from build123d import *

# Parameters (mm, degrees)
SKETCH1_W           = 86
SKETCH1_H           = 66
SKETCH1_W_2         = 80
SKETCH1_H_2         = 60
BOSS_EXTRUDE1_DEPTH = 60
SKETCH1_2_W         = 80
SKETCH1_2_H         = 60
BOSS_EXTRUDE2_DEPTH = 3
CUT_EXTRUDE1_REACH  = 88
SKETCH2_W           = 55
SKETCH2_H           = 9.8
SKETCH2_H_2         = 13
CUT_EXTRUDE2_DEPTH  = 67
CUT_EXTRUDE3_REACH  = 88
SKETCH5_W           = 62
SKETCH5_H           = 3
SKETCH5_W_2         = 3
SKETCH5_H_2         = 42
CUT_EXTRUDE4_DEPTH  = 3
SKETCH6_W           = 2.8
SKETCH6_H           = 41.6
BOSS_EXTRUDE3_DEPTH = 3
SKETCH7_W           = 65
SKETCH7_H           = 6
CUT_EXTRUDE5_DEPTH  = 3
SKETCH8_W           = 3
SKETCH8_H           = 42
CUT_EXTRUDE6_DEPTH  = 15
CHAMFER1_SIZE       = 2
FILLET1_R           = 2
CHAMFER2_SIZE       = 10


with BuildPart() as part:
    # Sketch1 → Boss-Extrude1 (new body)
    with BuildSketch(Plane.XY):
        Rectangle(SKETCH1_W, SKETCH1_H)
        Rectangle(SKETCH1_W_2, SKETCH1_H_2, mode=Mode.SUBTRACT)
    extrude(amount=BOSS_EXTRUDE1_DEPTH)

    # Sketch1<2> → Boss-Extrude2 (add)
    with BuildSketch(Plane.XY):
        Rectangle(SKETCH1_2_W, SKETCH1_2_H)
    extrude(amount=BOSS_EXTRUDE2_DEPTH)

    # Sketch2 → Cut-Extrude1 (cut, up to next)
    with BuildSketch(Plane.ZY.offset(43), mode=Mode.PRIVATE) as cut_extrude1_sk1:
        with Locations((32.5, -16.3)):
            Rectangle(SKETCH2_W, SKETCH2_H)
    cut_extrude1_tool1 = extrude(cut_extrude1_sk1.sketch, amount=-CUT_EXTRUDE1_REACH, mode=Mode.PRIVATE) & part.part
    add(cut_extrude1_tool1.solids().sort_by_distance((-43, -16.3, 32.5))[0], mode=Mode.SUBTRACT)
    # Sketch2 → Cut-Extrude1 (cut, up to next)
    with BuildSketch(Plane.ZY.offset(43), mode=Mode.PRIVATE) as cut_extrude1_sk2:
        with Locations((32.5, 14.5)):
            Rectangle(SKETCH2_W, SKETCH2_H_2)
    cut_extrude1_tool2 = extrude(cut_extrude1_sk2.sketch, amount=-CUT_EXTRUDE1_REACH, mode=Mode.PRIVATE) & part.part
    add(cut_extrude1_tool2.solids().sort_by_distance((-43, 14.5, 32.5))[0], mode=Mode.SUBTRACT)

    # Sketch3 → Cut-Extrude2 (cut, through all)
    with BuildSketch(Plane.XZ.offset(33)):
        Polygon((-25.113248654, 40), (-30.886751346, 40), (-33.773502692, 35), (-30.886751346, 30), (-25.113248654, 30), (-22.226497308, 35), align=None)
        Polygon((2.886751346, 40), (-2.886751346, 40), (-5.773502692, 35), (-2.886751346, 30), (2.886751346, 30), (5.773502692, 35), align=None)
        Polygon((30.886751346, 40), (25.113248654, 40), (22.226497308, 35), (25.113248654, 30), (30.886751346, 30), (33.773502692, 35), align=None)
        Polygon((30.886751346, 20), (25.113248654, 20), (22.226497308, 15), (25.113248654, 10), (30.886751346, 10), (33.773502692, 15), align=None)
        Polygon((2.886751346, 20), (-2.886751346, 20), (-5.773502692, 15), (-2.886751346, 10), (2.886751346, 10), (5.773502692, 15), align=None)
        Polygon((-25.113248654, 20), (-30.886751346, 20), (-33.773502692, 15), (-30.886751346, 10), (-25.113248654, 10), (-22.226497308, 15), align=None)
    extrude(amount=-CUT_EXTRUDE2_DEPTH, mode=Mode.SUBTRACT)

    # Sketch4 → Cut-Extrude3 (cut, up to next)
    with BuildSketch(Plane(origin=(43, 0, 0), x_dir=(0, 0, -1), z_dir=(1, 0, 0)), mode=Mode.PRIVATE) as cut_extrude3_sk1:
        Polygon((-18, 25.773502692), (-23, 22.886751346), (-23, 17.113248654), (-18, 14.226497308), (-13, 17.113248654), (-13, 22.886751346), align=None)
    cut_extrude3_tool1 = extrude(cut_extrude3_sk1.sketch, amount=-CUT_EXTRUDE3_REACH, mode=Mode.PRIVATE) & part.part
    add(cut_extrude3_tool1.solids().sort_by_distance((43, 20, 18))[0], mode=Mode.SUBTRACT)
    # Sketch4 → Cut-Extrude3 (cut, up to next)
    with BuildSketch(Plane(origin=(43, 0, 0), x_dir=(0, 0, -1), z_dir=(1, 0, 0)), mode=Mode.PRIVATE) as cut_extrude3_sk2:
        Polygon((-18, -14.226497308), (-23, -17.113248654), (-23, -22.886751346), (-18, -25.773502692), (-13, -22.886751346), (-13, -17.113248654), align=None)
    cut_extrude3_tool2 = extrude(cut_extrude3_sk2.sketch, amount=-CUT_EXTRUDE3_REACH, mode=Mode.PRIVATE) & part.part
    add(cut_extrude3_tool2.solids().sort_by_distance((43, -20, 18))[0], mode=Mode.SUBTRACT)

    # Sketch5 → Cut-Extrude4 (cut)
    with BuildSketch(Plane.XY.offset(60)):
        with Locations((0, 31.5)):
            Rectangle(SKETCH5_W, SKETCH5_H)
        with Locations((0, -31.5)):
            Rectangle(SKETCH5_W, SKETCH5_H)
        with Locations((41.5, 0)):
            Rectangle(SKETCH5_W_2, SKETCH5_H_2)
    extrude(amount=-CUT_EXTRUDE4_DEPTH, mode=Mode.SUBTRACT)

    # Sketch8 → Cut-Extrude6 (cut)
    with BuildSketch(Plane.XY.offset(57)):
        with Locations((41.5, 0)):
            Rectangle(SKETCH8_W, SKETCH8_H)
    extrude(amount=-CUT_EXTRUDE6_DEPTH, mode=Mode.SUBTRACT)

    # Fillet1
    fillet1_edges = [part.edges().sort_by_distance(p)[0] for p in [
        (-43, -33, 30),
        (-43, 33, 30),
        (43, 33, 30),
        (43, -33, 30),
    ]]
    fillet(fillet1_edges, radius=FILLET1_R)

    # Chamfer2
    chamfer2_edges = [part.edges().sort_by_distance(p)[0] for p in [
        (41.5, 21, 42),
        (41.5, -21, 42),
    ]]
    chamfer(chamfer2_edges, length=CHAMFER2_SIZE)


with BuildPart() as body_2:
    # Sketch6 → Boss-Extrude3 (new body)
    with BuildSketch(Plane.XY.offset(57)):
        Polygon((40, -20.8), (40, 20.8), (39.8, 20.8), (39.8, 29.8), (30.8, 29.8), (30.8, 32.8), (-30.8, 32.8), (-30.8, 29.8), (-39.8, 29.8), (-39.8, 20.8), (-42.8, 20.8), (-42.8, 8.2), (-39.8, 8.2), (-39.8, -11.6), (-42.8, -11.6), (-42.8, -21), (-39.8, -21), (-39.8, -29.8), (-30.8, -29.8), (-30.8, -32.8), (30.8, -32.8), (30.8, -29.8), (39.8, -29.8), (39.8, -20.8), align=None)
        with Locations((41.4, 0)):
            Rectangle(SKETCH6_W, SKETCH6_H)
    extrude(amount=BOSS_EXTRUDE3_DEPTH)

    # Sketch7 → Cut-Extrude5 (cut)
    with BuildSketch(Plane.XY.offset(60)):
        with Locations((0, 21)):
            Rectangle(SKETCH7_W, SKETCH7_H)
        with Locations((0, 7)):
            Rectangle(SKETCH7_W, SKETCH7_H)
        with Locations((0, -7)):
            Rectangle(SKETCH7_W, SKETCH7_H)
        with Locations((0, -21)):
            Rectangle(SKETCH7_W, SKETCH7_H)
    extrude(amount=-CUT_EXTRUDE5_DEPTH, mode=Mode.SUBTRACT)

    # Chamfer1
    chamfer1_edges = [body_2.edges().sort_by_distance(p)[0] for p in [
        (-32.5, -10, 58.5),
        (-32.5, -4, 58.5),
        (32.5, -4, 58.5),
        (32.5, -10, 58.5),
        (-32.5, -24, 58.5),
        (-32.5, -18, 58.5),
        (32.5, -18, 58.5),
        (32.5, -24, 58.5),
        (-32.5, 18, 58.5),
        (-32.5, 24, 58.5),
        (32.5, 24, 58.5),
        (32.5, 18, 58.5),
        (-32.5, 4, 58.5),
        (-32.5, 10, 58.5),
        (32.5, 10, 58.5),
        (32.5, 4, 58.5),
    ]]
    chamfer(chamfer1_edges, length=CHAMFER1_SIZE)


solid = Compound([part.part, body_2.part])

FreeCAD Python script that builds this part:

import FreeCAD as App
import Part
import Sketcher
Q = App.Units.Quantity


def edges_at(feature, points):
    """Names of the edges that pass closest to the given points."""
    edges = feature.Shape.Edges
    near = lambda p: min(range(len(edges)), key=lambda i: edges[i].distToShape(Part.Vertex(*p))[0])
    return sorted({f"Edge{near(p) + 1}" for p in points})

doc = App.newDocument("Part")
body = doc.addObject("PartDesign::Body", "Body")

# Sketch on XY plane
sketch1 = doc.addObject("Sketcher::SketchObject", "Sketch")
body.addObject(sketch1)
sketch1.AttachmentSupport = (doc.XY_Plane, [""])
sketch1.MapMode = "FlatFace"
sketch1.addGeometry([
    Part.LineSegment(App.Vector(-43, 33, 0), App.Vector(-43, -33, 0)),  # 0
    Part.LineSegment(App.Vector(-43, -33, 0), App.Vector(43, -33, 0)),  # 1
    Part.LineSegment(App.Vector(43, -33, 0), App.Vector(43, 33, 0)),  # 2
    Part.LineSegment(App.Vector(43, 33, 0), App.Vector(-43, 33, 0)),  # 3
    Part.LineSegment(App.Vector(40, -30, 0), App.Vector(-40, -30, 0)),  # 4
    Part.LineSegment(App.Vector(-40, -30, 0), App.Vector(-40, 30, 0)),  # 5
    Part.LineSegment(App.Vector(-40, 30, 0), App.Vector(40, 30, 0)),  # 6
    Part.LineSegment(App.Vector(40, 30, 0), App.Vector(40, -30, 0)),  # 7
], False)
sketch1.addConstraint([
    Sketcher.Constraint("Coincident", 0, 2, 1, 1),
    Sketcher.Constraint("Coincident", 1, 2, 2, 1),
    Sketcher.Constraint("Coincident", 2, 2, 3, 1),
    Sketcher.Constraint("Coincident", 3, 2, 0, 1),
    Sketcher.Constraint("Coincident", 4, 2, 5, 1),
    Sketcher.Constraint("Coincident", 5, 2, 6, 1),
    Sketcher.Constraint("Coincident", 6, 2, 7, 1),
    Sketcher.Constraint("Coincident", 7, 2, 4, 1),
    Sketcher.Constraint("Vertical", 0),
    Sketcher.Constraint("Horizontal", 1),
    Sketcher.Constraint("Vertical", 2),
    Sketcher.Constraint("Horizontal", 3),
    Sketcher.Constraint("Horizontal", 4),
    Sketcher.Constraint("Vertical", 5),
    Sketcher.Constraint("Horizontal", 6),
    Sketcher.Constraint("Vertical", 7),
    Sketcher.Constraint("Symmetric", 0, 2, 2, 2, -1, 1),
    Sketcher.Constraint("Symmetric", 4, 2, 6, 2, -1, 1),
    Sketcher.Constraint("DistanceX", 1, 1, 1, 2, 86.0),
    Sketcher.Constraint("DistanceX", 4, 2, 4, 1, 80.0),
    Sketcher.Constraint("DistanceY", 0, 2, 0, 1, 66.0),
    Sketcher.Constraint("DistanceY", 5, 1, 5, 2, 60.0),
])
pad1 = doc.addObject("PartDesign::Pad", "Pad")
body.addObject(pad1)
pad1.Profile = sketch1
pad1.Length = 60

# Sketch on XY plane
sketch2 = doc.addObject("Sketcher::SketchObject", "Sketch001")
body.addObject(sketch2)
sketch2.AttachmentSupport = (doc.XY_Plane, [""])
sketch2.MapMode = "FlatFace"
sketch2.addGeometry([
    Part.LineSegment(App.Vector(-40, 30, 0), App.Vector(-40, -30, 0)),
    Part.LineSegment(App.Vector(-40, -30, 0), App.Vector(40, -30, 0)),
    Part.LineSegment(App.Vector(40, -30, 0), App.Vector(40, 30, 0)),
    Part.LineSegment(App.Vector(40, 30, 0), App.Vector(-40, 30, 0)),
], False)
sketch2.addConstraint([
    Sketcher.Constraint("Coincident", 0, 2, 1, 1),
    Sketcher.Constraint("Coincident", 1, 2, 2, 1),
    Sketcher.Constraint("Coincident", 2, 2, 3, 1),
    Sketcher.Constraint("Coincident", 3, 2, 0, 1),
    Sketcher.Constraint("Vertical", 0),
    Sketcher.Constraint("Horizontal", 1),
    Sketcher.Constraint("Vertical", 2),
    Sketcher.Constraint("Horizontal", 3),
    Sketcher.Constraint("Symmetric", 0, 2, 2, 2, -1, 1),
    Sketcher.Constraint("DistanceX", 1, 1, 1, 2, 80.0),
    Sketcher.Constraint("DistanceY", 0, 2, 0, 1, 60.0),
])
pad2 = doc.addObject("PartDesign::Pad", "Pad001")
body.addObject(pad2)
pad2.Profile = sketch2
pad2.Length = 3

# Sketch on YZ plane
sketch3 = doc.addObject("Sketcher::SketchObject", "Sketch002")
body.addObject(sketch3)
sketch3.AttachmentSupport = (doc.YZ_Plane, [""])
sketch3.MapMode = "FlatFace"
sketch3.AttachmentOffset = App.Placement(App.Vector(0, 0, -43), App.Rotation())
sketch3.addGeometry([
    Part.LineSegment(App.Vector(-11, 5, 0), App.Vector(-21, 5, 0)),
    Part.LineSegment(App.Vector(-21, 5, 0), App.Vector(-21, 60, 0)),
    Part.LineSegment(App.Vector(-21, 60, 0), App.Vector(-11, 60, 0)),
    Part.LineSegment(App.Vector(-11, 60, 0), App.Vector(-11, 5, 0)),
], False)
sketch3.addConstraint([
    Sketcher.Constraint("Coincident", 0, 2, 1, 1),
    Sketcher.Constraint("Coincident", 1, 2, 2, 1),
    Sketcher.Constraint("Coincident", 2, 2, 3, 1),
    Sketcher.Constraint("Coincident", 3, 2, 0, 1),
    Sketcher.Constraint("Horizontal", 0),
    Sketcher.Constraint("Vertical", 1),
    Sketcher.Constraint("Horizontal", 2),
    Sketcher.Constraint("Vertical", 3),
    Sketcher.Constraint("DistanceY", 1, 1, 1, 2, 55.0),
    Sketcher.Constraint("DistanceX", 0, 2, 0, 1, 9.8),
    Sketcher.Constraint("DistanceY", -1, 1, 0, 2, 5.0),
    Sketcher.Constraint("DistanceX", 0, 2, -1, 1, 21.2),
])
pocket1 = doc.addObject("PartDesign::Pocket", "Pocket")
body.addObject(pocket1)
pocket1.Profile = sketch3
pocket1.Type = "UpToFirst"
pocket1.Reversed = True

# Sketch on YZ plane
sketch4 = doc.addObject("Sketcher::SketchObject", "Sketch003")
body.addObject(sketch4)
sketch4.AttachmentSupport = (doc.YZ_Plane, [""])
sketch4.MapMode = "FlatFace"
sketch4.AttachmentOffset = App.Placement(App.Vector(0, 0, -43), App.Rotation())
sketch4.addGeometry([
    Part.LineSegment(App.Vector(21, 5, 0), App.Vector(8, 5, 0)),
    Part.LineSegment(App.Vector(8, 5, 0), App.Vector(8, 60, 0)),
    Part.LineSegment(App.Vector(8, 60, 0), App.Vector(21, 60, 0)),
    Part.LineSegment(App.Vector(21, 60, 0), App.Vector(21, 5, 0)),
], False)
sketch4.addConstraint([
    Sketcher.Constraint("Coincident", 0, 2, 1, 1),
    Sketcher.Constraint("Coincident", 1, 2, 2, 1),
    Sketcher.Constraint("Coincident", 2, 2, 3, 1),
    Sketcher.Constraint("Coincident", 3, 2, 0, 1),
    Sketcher.Constraint("Horizontal", 0),
    Sketcher.Constraint("Vertical", 1),
    Sketcher.Constraint("Horizontal", 2),
    Sketcher.Constraint("Vertical", 3),
    Sketcher.Constraint("DistanceX", 0, 2, 0, 1, 13.0),
    Sketcher.Constraint("DistanceY", 1, 1, 1, 2, 55.0),
    Sketcher.Constraint("DistanceX", -1, 1, 0, 2, 8.0),
    Sketcher.Constraint("DistanceY", -1, 1, 0, 2, 5.0),
])
pocket2 = doc.addObject("PartDesign::Pocket", "Pocket001")
body.addObject(pocket2)
pocket2.Profile = sketch4
pocket2.Type = "UpToFirst"
pocket2.Reversed = True

# Sketch on XZ plane
sketch5 = doc.addObject("Sketcher::SketchObject", "Sketch004")
body.addObject(sketch5)
sketch5.AttachmentSupport = (doc.XZ_Plane, [""])
sketch5.MapMode = "FlatFace"
sketch5.AttachmentOffset = App.Placement(App.Vector(0, 0, 33), App.Rotation())
sketch5.addGeometry([
    Part.LineSegment(App.Vector(-25, 40, 0), App.Vector(-31, 40, 0)),  # 0
    Part.LineSegment(App.Vector(-31, 40, 0), App.Vector(-34, 35, 0)),  # 1
    Part.LineSegment(App.Vector(-34, 35, 0), App.Vector(-31, 30, 0)),  # 2
    Part.LineSegment(App.Vector(-31, 30, 0), App.Vector(-25, 30, 0)),  # 3
    Part.LineSegment(App.Vector(-25, 30, 0), App.Vector(-22, 35, 0)),  # 4
    Part.LineSegment(App.Vector(-22, 35, 0), App.Vector(-25, 40, 0)),  # 5
    Part.LineSegment(App.Vector(3, 40, 0), App.Vector(-3, 40, 0)),  # 6
    Part.LineSegment(App.Vector(-3, 40, 0), App.Vector(-6, 35, 0)),  # 7
    Part.LineSegment(App.Vector(-6, 35, 0), App.Vector(-3, 30, 0)),  # 8
    Part.LineSegment(App.Vector(-3, 30, 0), App.Vector(3, 30, 0)),  # 9
    Part.LineSegment(App.Vector(3, 30, 0), App.Vector(6, 35, 0)),  # 10
    Part.LineSegment(App.Vector(6, 35, 0), App.Vector(3, 40, 0)),  # 11
    Part.LineSegment(App.Vector(31, 40, 0), App.Vector(25, 40, 0)),  # 12
    Part.LineSegment(App.Vector(25, 40, 0), App.Vector(22, 35, 0)),  # 13
    Part.LineSegment(App.Vector(22, 35, 0), App.Vector(25, 30, 0)),  # 14
    Part.LineSegment(App.Vector(25, 30, 0), App.Vector(31, 30, 0)),  # 15
    Part.LineSegment(App.Vector(31, 30, 0), App.Vector(34, 35, 0)),  # 16
    Part.LineSegment(App.Vector(34, 35, 0), App.Vector(31, 40, 0)),  # 17
    Part.LineSegment(App.Vector(31, 20, 0), App.Vector(25, 20, 0)),  # 18
    Part.LineSegment(App.Vector(25, 20, 0), App.Vector(22, 15, 0)),  # 19
    Part.LineSegment(App.Vector(22, 15, 0), App.Vector(25, 10, 0)),  # 20
    Part.LineSegment(App.Vector(25, 10, 0), App.Vector(31, 10, 0)),  # 21
    Part.LineSegment(App.Vector(31, 10, 0), App.Vector(34, 15, 0)),  # 22
    Part.LineSegment(App.Vector(34, 15, 0), App.Vector(31, 20, 0)),  # 23
    Part.LineSegment(App.Vector(3, 20, 0), App.Vector(-3, 20, 0)),  # 24
    Part.LineSegment(App.Vector(-3, 20, 0), App.Vector(-6, 15, 0)),  # 25
    Part.LineSegment(App.Vector(-6, 15, 0), App.Vector(-3, 10, 0)),  # 26
    Part.LineSegment(App.Vector(-3, 10, 0), App.Vector(3, 10, 0)),  # 27
    Part.LineSegment(App.Vector(3, 10, 0), App.Vector(6, 15, 0)),  # 28
    Part.LineSegment(App.Vector(6, 15, 0), App.Vector(3, 20, 0)),  # 29
    Part.LineSegment(App.Vector(-25, 20, 0), App.Vector(-31, 20, 0)),  # 30
    Part.LineSegment(App.Vector(-31, 20, 0), App.Vector(-34, 15, 0)),  # 31
    Part.LineSegment(App.Vector(-34, 15, 0), App.Vector(-31, 10, 0)),  # 32
    Part.LineSegment(App.Vector(-31, 10, 0), App.Vector(-25, 10, 0)),  # 33
    Part.LineSegment(App.Vector(-25, 10, 0), App.Vector(-22, 15, 0)),  # 34
    Part.LineSegment(App.Vector(-22, 15, 0), App.Vector(-25, 20, 0)),  # 35
], False)
sketch5.addConstraint([
    Sketcher.Constraint("Coincident", 0, 2, 1, 1),
    Sketcher.Constraint("Coincident", 1, 2, 2, 1),
    Sketcher.Constraint("Coincident", 2, 2, 3, 1),
    Sketcher.Constraint("Coincident", 3, 2, 4, 1),
    Sketcher.Constraint("Coincident", 4, 2, 5, 1),
    Sketcher.Constraint("Coincident", 5, 2, 0, 1),
    Sketcher.Constraint("Coincident", 6, 2, 7, 1),
    Sketcher.Constraint("Coincident", 7, 2, 8, 1),
    Sketcher.Constraint("Coincident", 8, 2, 9, 1),
    Sketcher.Constraint("Coincident", 9, 2, 10, 1),
    Sketcher.Constraint("Coincident", 10, 2, 11, 1),
    Sketcher.Constraint("Coincident", 11, 2, 6, 1),
    Sketcher.Constraint("Coincident", 12, 2, 13, 1),
    Sketcher.Constraint("Coincident", 13, 2, 14, 1),
    Sketcher.Constraint("Coincident", 14, 2, 15, 1),
    Sketcher.Constraint("Coincident", 15, 2, 16, 1),
    Sketcher.Constraint("Coincident", 16, 2, 17, 1),
    Sketcher.Constraint("Coincident", 17, 2, 12, 1),
    Sketcher.Constraint("Coincident", 18, 2, 19, 1),
    Sketcher.Constraint("Coincident", 19, 2, 20, 1),
    Sketcher.Constraint("Coincident", 20, 2, 21, 1),
    Sketcher.Constraint("Coincident", 21, 2, 22, 1),
    Sketcher.Constraint("Coincident", 22, 2, 23, 1),
    Sketcher.Constraint("Coincident", 23, 2, 18, 1),
    Sketcher.Constraint("Coincident", 24, 2, 25, 1),
    Sketcher.Constraint("Coincident", 25, 2, 26, 1),
    Sketcher.Constraint("Coincident", 26, 2, 27, 1),
    Sketcher.Constraint("Coincident", 27, 2, 28, 1),
    Sketcher.Constraint("Coincident", 28, 2, 29, 1),
    Sketcher.Constraint("Coincident", 29, 2, 24, 1),
    Sketcher.Constraint("Coincident", 30, 2, 31, 1),
    Sketcher.Constraint("Coincident", 31, 2, 32, 1),
    Sketcher.Constraint("Coincident", 32, 2, 33, 1),
    Sketcher.Constraint("Coincident", 33, 2, 34, 1),
    Sketcher.Constraint("Coincident", 34, 2, 35, 1),
    Sketcher.Constraint("Coincident", 35, 2, 30, 1),
    Sketcher.Constraint("Horizontal", 0),
    Sketcher.Constraint("Horizontal", 3),
    Sketcher.Constraint("Horizontal", 6),
    Sketcher.Constraint("Horizontal", 9),
    Sketcher.Constraint("Horizontal", 12),
    Sketcher.Constraint("Horizontal", 15),
    Sketcher.Constraint("Horizontal", 18),
    Sketcher.Constraint("Horizontal", 21),
    Sketcher.Constraint("Horizontal", 24),
    Sketcher.Constraint("Horizontal", 27),
    Sketcher.Constraint("Horizontal", 30),
    Sketcher.Constraint("Horizontal", 33),
    Sketcher.Constraint("Symmetric", 7, 2, 10, 2, -2),
    Sketcher.Constraint("Symmetric", 5, 2, 12, 2, -2),
    Sketcher.Constraint("Symmetric", 4, 2, 13, 2, -2),
    Sketcher.Constraint("Symmetric", 3, 2, 14, 2, -2),
    Sketcher.Constraint("Symmetric", 1, 2, 16, 2, -2),
    Sketcher.Constraint("Symmetric", 25, 2, 28, 2, -2),
    Sketcher.Constraint("Symmetric", 23, 2, 30, 2, -2),
    Sketcher.Constraint("Symmetric", 22, 2, 31, 2, -2),
    Sketcher.Constraint("Symmetric", 21, 2, 32, 2, -2),
    Sketcher.Constraint("Symmetric", 19, 2, 34, 2, -2),
    Sketcher.Constraint("Parallel", 1, 4),
    Sketcher.Constraint("Parallel", 2, 5),
    Sketcher.Constraint("Parallel", 4, 7),
    Sketcher.Constraint("Parallel", 5, 8),
    Sketcher.Constraint("Parallel", 7, 10),
    Sketcher.Constraint("Parallel", 8, 11),
    Sketcher.Constraint("Parallel", 10, 13),
    Sketcher.Constraint("Parallel", 13, 16),
    Sketcher.Constraint("Parallel", 14, 17),
    Sketcher.Constraint("Parallel", 16, 19),
    Sketcher.Constraint("Parallel", 17, 20),
    Sketcher.Constraint("Parallel", 19, 22),
    Sketcher.Constraint("Parallel", 20, 23),
    Sketcher.Constraint("Parallel", 22, 25),
    Sketcher.Constraint("Parallel", 23, 26),
    Sketcher.Constraint("Parallel", 25, 28),
    Sketcher.Constraint("Parallel", 26, 29),
    Sketcher.Constraint("Parallel", 31, 34),
    Sketcher.Constraint("Parallel", 32, 35),
    Sketcher.Constraint("Horizontal", 1, 2, 4, 2),
    Sketcher.Constraint("Horizontal", 5, 2, 6, 2),
    Sketcher.Constraint("Horizontal", 4, 2, 7, 2),
    Sketcher.Constraint("Horizontal", 3, 2, 8, 2),
    Sketcher.Constraint("Horizontal", 19, 2, 22, 2),
    Sketcher.Constraint("Horizontal", 23, 2, 24, 2),
    Sketcher.Constraint("Horizontal", 22, 2, 25, 2),
    Sketcher.Constraint("Horizontal", 21, 2, 26, 2),
    Sketcher.Constraint("Vertical", 0, 2, 2, 2),
    Sketcher.Constraint("Vertical", 14, 2, 18, 2),
    Sketcher.Constraint("Vertical", 13, 2, 19, 2),
    Sketcher.Constraint("Vertical", 18, 2, 20, 2),
    Sketcher.Constraint("Vertical", 17, 2, 21, 2),
    Sketcher.Constraint("Vertical", 8, 2, 24, 2),
    Sketcher.Constraint("Equal", 3, 6),
    Sketcher.Constraint("Angle", 1, Q("-120 deg")),
    Sketcher.Constraint("DistanceY", -1, 1, 0, 2, 40.0),
    Sketcher.Constraint("DistanceY", -1, 1, 1, 2, 35.0),
    Sketcher.Constraint("DistanceY", -1, 1, 18, 2, 20.0),
    Sketcher.Constraint("DistanceX", 0, 2, 6, 2, 28.0),
    Sketcher.Constraint("DistanceX", 0, 2, 0, 1, 5.773503),
])
pocket3 = doc.addObject("PartDesign::Pocket", "Pocket002")
body.addObject(pocket3)
pocket3.Profile = sketch5
pocket3.Type = "ThroughAll"

# Sketch on YZ plane
sketch6 = doc.addObject("Sketcher::SketchObject", "Sketch005")
body.addObject(sketch6)
sketch6.AttachmentSupport = (doc.YZ_Plane, [""])
sketch6.MapMode = "FlatFace"
sketch6.AttachmentOffset = App.Placement(App.Vector(0, 0, 43), App.Rotation())
sketch6.addGeometry([
    Part.LineSegment(App.Vector(26, 18, 0), App.Vector(23, 23, 0)),  # 0
    Part.LineSegment(App.Vector(23, 23, 0), App.Vector(17, 23, 0)),  # 1
    Part.LineSegment(App.Vector(17, 23, 0), App.Vector(14, 18, 0)),  # 2
    Part.LineSegment(App.Vector(14, 18, 0), App.Vector(17, 13, 0)),  # 3
    Part.LineSegment(App.Vector(17, 13, 0), App.Vector(23, 13, 0)),  # 4
    Part.LineSegment(App.Vector(23, 13, 0), App.Vector(26, 18, 0)),  # 5
], False)
sketch6.addConstraint([
    Sketcher.Constraint("Coincident", 0, 2, 1, 1),
    Sketcher.Constraint("Coincident", 1, 2, 2, 1),
    Sketcher.Constraint("Coincident", 2, 2, 3, 1),
    Sketcher.Constraint("Coincident", 3, 2, 4, 1),
    Sketcher.Constraint("Coincident", 4, 2, 5, 1),
    Sketcher.Constraint("Coincident", 5, 2, 0, 1),
    Sketcher.Constraint("Horizontal", 1),
    Sketcher.Constraint("Horizontal", 4),
    Sketcher.Constraint("Parallel", 0, 3),
    Sketcher.Constraint("Parallel", 2, 5),
    Sketcher.Constraint("Horizontal", 2, 2, 5, 2),
    Sketcher.Constraint("Vertical", 1, 2, 3, 2),
    Sketcher.Constraint("Vertical", 0, 2, 4, 2),
    Sketcher.Constraint("Angle", 0, Q("120 deg")),
    Sketcher.Constraint("DistanceY", -1, 1, 0, 2, 23.0),
    Sketcher.Constraint("DistanceY", -1, 1, 2, 2, 18.0),
    Sketcher.Constraint("DistanceX", 1, 2, 1, 1, 5.773503),
    Sketcher.Constraint("DistanceX", -1, 1, 0, 2, 22.886751),
])
pocket4 = doc.addObject("PartDesign::Pocket", "Pocket003")
body.addObject(pocket4)
pocket4.Profile = sketch6
pocket4.Type = "UpToFirst"

# Sketch on YZ plane
sketch7 = doc.addObject("Sketcher::SketchObject", "Sketch006")
body.addObject(sketch7)
sketch7.AttachmentSupport = (doc.YZ_Plane, [""])
sketch7.MapMode = "FlatFace"
sketch7.AttachmentOffset = App.Placement(App.Vector(0, 0, 43), App.Rotation())
sketch7.addGeometry([
    Part.LineSegment(App.Vector(-14, 18, 0), App.Vector(-17, 23, 0)),  # 0
    Part.LineSegment(App.Vector(-17, 23, 0), App.Vector(-23, 23, 0)),  # 1
    Part.LineSegment(App.Vector(-23, 23, 0), App.Vector(-26, 18, 0)),  # 2
    Part.LineSegment(App.Vector(-26, 18, 0), App.Vector(-23, 13, 0)),  # 3
    Part.LineSegment(App.Vector(-23, 13, 0), App.Vector(-17, 13, 0)),  # 4
    Part.LineSegment(App.Vector(-17, 13, 0), App.Vector(-14, 18, 0)),  # 5
], False)
sketch7.addConstraint([
    Sketcher.Constraint("Coincident", 0, 2, 1, 1),
    Sketcher.Constraint("Coincident", 1, 2, 2, 1),
    Sketcher.Constraint("Coincident", 2, 2, 3, 1),
    Sketcher.Constraint("Coincident", 3, 2, 4, 1),
    Sketcher.Constraint("Coincident", 4, 2, 5, 1),
    Sketcher.Constraint("Coincident", 5, 2, 0, 1),
    Sketcher.Constraint("Horizontal", 1),
    Sketcher.Constraint("Horizontal", 4),
    Sketcher.Constraint("Parallel", 0, 3),
    Sketcher.Constraint("Parallel", 2, 5),
    Sketcher.Constraint("Horizontal", 2, 2, 5, 2),
    Sketcher.Constraint("Vertical", 1, 2, 3, 2),
    Sketcher.Constraint("Vertical", 0, 2, 4, 2),
    Sketcher.Constraint("Angle", 0, Q("120 deg")),
    Sketcher.Constraint("DistanceY", -1, 1, 0, 2, 23.0),
    Sketcher.Constraint("DistanceY", -1, 1, 2, 2, 18.0),
    Sketcher.Constraint("DistanceX", 1, 2, 1, 1, 5.773503),
    Sketcher.Constraint("DistanceX", 0, 2, -1, 1, 17.113249),
])
pocket5 = doc.addObject("PartDesign::Pocket", "Pocket004")
body.addObject(pocket5)
pocket5.Profile = sketch7
pocket5.Type = "UpToFirst"

# Sketch on XY plane
sketch8 = doc.addObject("Sketcher::SketchObject", "Sketch007")
body.addObject(sketch8)
sketch8.AttachmentSupport = (doc.XY_Plane, [""])
sketch8.MapMode = "FlatFace"
sketch8.AttachmentOffset = App.Placement(App.Vector(0, 0, 60), App.Rotation())
sketch8.addGeometry([
    Part.LineSegment(App.Vector(-31, 33, 0), App.Vector(-31, 30, 0)),  # 0
    Part.LineSegment(App.Vector(-31, 30, 0), App.Vector(31, 30, 0)),  # 1
    Part.LineSegment(App.Vector(31, 30, 0), App.Vector(31, 33, 0)),  # 2
    Part.LineSegment(App.Vector(31, 33, 0), App.Vector(-31, 33, 0)),  # 3
    Part.LineSegment(App.Vector(-31, -30, 0), App.Vector(-31, -33, 0)),  # 4
    Part.LineSegment(App.Vector(-31, -33, 0), App.Vector(31, -33, 0)),  # 5
    Part.LineSegment(App.Vector(31, -33, 0), App.Vector(31, -30, 0)),  # 6
    Part.LineSegment(App.Vector(31, -30, 0), App.Vector(-31, -30, 0)),  # 7
    Part.LineSegment(App.Vector(40, 21, 0), App.Vector(40, -21, 0)),  # 8
    Part.LineSegment(App.Vector(40, -21, 0), App.Vector(43, -21, 0)),  # 9
    Part.LineSegment(App.Vector(43, -21, 0), App.Vector(43, 21, 0)),  # 10
    Part.LineSegment(App.Vector(43, 21, 0), App.Vector(40, 21, 0)),  # 11
], False)
sketch8.addConstraint([
    Sketcher.Constraint("Coincident", 0, 2, 1, 1),
    Sketcher.Constraint("Coincident", 1, 2, 2, 1),
    Sketcher.Constraint("Coincident", 2, 2, 3, 1),
    Sketcher.Constraint("Coincident", 3, 2, 0, 1),
    Sketcher.Constraint("Coincident", 4, 2, 5, 1),
    Sketcher.Constraint("Coincident", 5, 2, 6, 1),
    Sketcher.Constraint("Coincident", 6, 2, 7, 1),
    Sketcher.Constraint("Coincident", 7, 2, 4, 1),
    Sketcher.Constraint("Coincident", 8, 2, 9, 1),
    Sketcher.Constraint("Coincident", 9, 2, 10, 1),
    Sketcher.Constraint("Coincident", 10, 2, 11, 1),
    Sketcher.Constraint("Coincident", 11, 2, 8, 1),
    Sketcher.Constraint("Vertical", 0),
    Sketcher.Constraint("Horizontal", 1),
    Sketcher.Constraint("Vertical", 2),
    Sketcher.Constraint("Horizontal", 3),
    Sketcher.Constraint("Vertical", 4),
    Sketcher.Constraint("Horizontal", 5),
    Sketcher.Constraint("Vertical", 6),
    Sketcher.Constraint("Horizontal", 7),
    Sketcher.Constraint("Vertical", 8),
    Sketcher.Constraint("Horizontal", 9),
    Sketcher.Constraint("Vertical", 10),
    Sketcher.Constraint("Horizontal", 11),
    Sketcher.Constraint("Symmetric", 2, 2, 4, 2, -1, 1),
    Sketcher.Constraint("Symmetric", 0, 2, 6, 2, -1, 1),
    Sketcher.Constraint("Vertical", 3, 2, 4, 2),
    Sketcher.Constraint("Equal", 11, 0),
    Sketcher.Constraint("DistanceX", 1, 1, 1, 2, 62.0),
    Sketcher.Constraint("DistanceX", 9, 1, 9, 2, 3.0),
    Sketcher.Constraint("DistanceY", 8, 2, 8, 1, 42.0),
    Sketcher.Constraint("DistanceY", -1, 1, 0, 2, 30.0),
    Sketcher.Constraint("DistanceX", -1, 1, 8, 2, 40.0),
    Sketcher.Constraint("DistanceY", 8, 2, -1, 1, 21.0),
])
pocket6 = doc.addObject("PartDesign::Pocket", "Pocket005")
body.addObject(pocket6)
pocket6.Profile = sketch8
pocket6.Length = 3

# Sketch on XY plane
sketch9 = doc.addObject("Sketcher::SketchObject", "Sketch008")
body.addObject(sketch9)
sketch9.AttachmentSupport = (doc.XY_Plane, [""])
sketch9.MapMode = "FlatFace"
sketch9.AttachmentOffset = App.Placement(App.Vector(0, 0, 57), App.Rotation())
sketch9.addGeometry([
    Part.LineSegment(App.Vector(40, 21, 0), App.Vector(40, -21, 0)),
    Part.LineSegment(App.Vector(40, -21, 0), App.Vector(43, -21, 0)),
    Part.LineSegment(App.Vector(43, -21, 0), App.Vector(43, 21, 0)),
    Part.LineSegment(App.Vector(43, 21, 0), App.Vector(40, 21, 0)),
], False)
sketch9.addConstraint([
    Sketcher.Constraint("Coincident", 0, 2, 1, 1),
    Sketcher.Constraint("Coincident", 1, 2, 2, 1),
    Sketcher.Constraint("Coincident", 2, 2, 3, 1),
    Sketcher.Constraint("Coincident", 3, 2, 0, 1),
    Sketcher.Constraint("Vertical", 0),
    Sketcher.Constraint("Horizontal", 1),
    Sketcher.Constraint("Vertical", 2),
    Sketcher.Constraint("Horizontal", 3),
    Sketcher.Constraint("DistanceX", 1, 1, 1, 2, 3.0),
    Sketcher.Constraint("DistanceY", 0, 2, 0, 1, 42.0),
    Sketcher.Constraint("DistanceX", -1, 1, 0, 2, 40.0),
    Sketcher.Constraint("DistanceY", 0, 2, -1, 1, 21.0),
])
pocket7 = doc.addObject("PartDesign::Pocket", "Pocket006")
body.addObject(pocket7)
pocket7.Profile = sketch9
pocket7.Length = 15
doc.recompute()

fillet = doc.addObject("PartDesign::Fillet", "Fillet")
body.addObject(fillet)
fillet.Base = (pocket7, edges_at(pocket7, [
    (-43, -33, 30),
    (-43, 33, 30),
    (43, 33, 30),
    (43, -33, 30),
]))
fillet.Radius = 2
doc.recompute()

chamfer = doc.addObject("PartDesign::Chamfer", "Chamfer")
body.addObject(chamfer)
chamfer.Base = (fillet, edges_at(fillet, [(41.5, 21, 42), (41.5, -21, 42)]))
chamfer.Size = 10
body2 = doc.addObject("PartDesign::Body", "Body001")

# Sketch on XY plane
sketch10 = doc.addObject("Sketcher::SketchObject", "Sketch009")
body2.addObject(sketch10)
sketch10.AttachmentSupport = (doc.getObject("XY_Plane001"), [""])
sketch10.MapMode = "FlatFace"
sketch10.AttachmentOffset = App.Placement(App.Vector(0, 0, 57), App.Rotation())
sketch10.addGeometry([
    Part.LineSegment(App.Vector(39.8, 20.8, 0), App.Vector(39.8, 29.8, 0)),  # 0
    Part.LineSegment(App.Vector(39.8, 29.8, 0), App.Vector(30.8, 29.8, 0)),  # 1
    Part.LineSegment(App.Vector(30.8, 29.8, 0), App.Vector(30.8, 32.8, 0)),  # 2
    Part.LineSegment(App.Vector(30.8, 32.8, 0), App.Vector(-30.8, 32.8, 0)),  # 3
    Part.LineSegment(App.Vector(-30.8, 32.8, 0), App.Vector(-30.8, 29.8, 0)),  # 4
    Part.LineSegment(App.Vector(-30.8, 29.8, 0), App.Vector(-39.8, 29.8, 0)),  # 5
    Part.LineSegment(App.Vector(-39.8, 29.8, 0), App.Vector(-39.8, 20.8, 0)),  # 6
    Part.LineSegment(App.Vector(-39.8, 20.8, 0), App.Vector(-42.8, 20.8, 0)),  # 7
    Part.LineSegment(App.Vector(-42.8, 20.8, 0), App.Vector(-42.8, 8.2, 0)),  # 8
    Part.LineSegment(App.Vector(-42.8, 8.2, 0), App.Vector(-39.8, 8.2, 0)),  # 9
    Part.LineSegment(App.Vector(-39.8, 8.2, 0), App.Vector(-39.8, -11.6, 0)),  # 10
    Part.LineSegment(App.Vector(-39.8, -11.6, 0), App.Vector(-42.8, -11.6, 0)),  # 11
    Part.LineSegment(App.Vector(-42.8, -11.6, 0), App.Vector(-42.8, -21, 0)),  # 12
    Part.LineSegment(App.Vector(-42.8, -21, 0), App.Vector(-39.8, -21, 0)),  # 13
    Part.LineSegment(App.Vector(-39.8, -21, 0), App.Vector(-39.8, -29.8, 0)),  # 14
    Part.LineSegment(App.Vector(-39.8, -29.8, 0), App.Vector(-30.8, -29.8, 0)),  # 15
    Part.LineSegment(App.Vector(-30.8, -29.8, 0), App.Vector(-30.8, -32.8, 0)),  # 16
    Part.LineSegment(App.Vector(-30.8, -32.8, 0), App.Vector(30.8, -32.8, 0)),  # 17
    Part.LineSegment(App.Vector(30.8, -32.8, 0), App.Vector(30.8, -29.8, 0)),  # 18
    Part.LineSegment(App.Vector(30.8, -29.8, 0), App.Vector(39.8, -29.8, 0)),  # 19
    Part.LineSegment(App.Vector(39.8, -29.8, 0), App.Vector(39.8, -20.8, 0)),  # 20
    Part.LineSegment(App.Vector(39.8, -20.8, 0), App.Vector(42.8, -20.8, 0)),  # 21
    Part.LineSegment(App.Vector(42.8, -20.8, 0), App.Vector(42.8, 20.8, 0)),  # 22
    Part.LineSegment(App.Vector(42.8, 20.8, 0), App.Vector(39.8, 20.8, 0)),  # 23
], False)
sketch10.addConstraint([
    Sketcher.Constraint("Coincident", 0, 2, 1, 1),
    Sketcher.Constraint("Coincident", 1, 2, 2, 1),
    Sketcher.Constraint("Coincident", 2, 2, 3, 1),
    Sketcher.Constraint("Coincident", 3, 2, 4, 1),
    Sketcher.Constraint("Coincident", 4, 2, 5, 1),
    Sketcher.Constraint("Coincident", 5, 2, 6, 1),
    Sketcher.Constraint("Coincident", 6, 2, 7, 1),
    Sketcher.Constraint("Coincident", 7, 2, 8, 1),
    Sketcher.Constraint("Coincident", 8, 2, 9, 1),
    Sketcher.Constraint("Coincident", 9, 2, 10, 1),
    Sketcher.Constraint("Coincident", 10, 2, 11, 1),
    Sketcher.Constraint("Coincident", 11, 2, 12, 1),
    Sketcher.Constraint("Coincident", 12, 2, 13, 1),
    Sketcher.Constraint("Coincident", 13, 2, 14, 1),
    Sketcher.Constraint("Coincident", 14, 2, 15, 1),
    Sketcher.Constraint("Coincident", 15, 2, 16, 1),
    Sketcher.Constraint("Coincident", 16, 2, 17, 1),
    Sketcher.Constraint("Coincident", 17, 2, 18, 1),
    Sketcher.Constraint("Coincident", 18, 2, 19, 1),
    Sketcher.Constraint("Coincident", 19, 2, 20, 1),
    Sketcher.Constraint("Coincident", 20, 2, 21, 1),
    Sketcher.Constraint("Coincident", 21, 2, 22, 1),
    Sketcher.Constraint("Coincident", 22, 2, 23, 1),
    Sketcher.Constraint("Coincident", 23, 2, 0, 1),
    Sketcher.Constraint("Vertical", 0),
    Sketcher.Constraint("Horizontal", 1),
    Sketcher.Constraint("Vertical", 2),
    Sketcher.Constraint("Horizontal", 3),
    Sketcher.Constraint("Vertical", 4),
    Sketcher.Constraint("Horizontal", 5),
    Sketcher.Constraint("Vertical", 6),
    Sketcher.Constraint("Horizontal", 7),
    Sketcher.Constraint("Vertical", 8),
    Sketcher.Constraint("Horizontal", 9),
    Sketcher.Constraint("Vertical", 10),
    Sketcher.Constraint("Horizontal", 11),
    Sketcher.Constraint("Vertical", 12),
    Sketcher.Constraint("Horizontal", 13),
    Sketcher.Constraint("Vertical", 14),
    Sketcher.Constraint("Horizontal", 15),
    Sketcher.Constraint("Vertical", 16),
    Sketcher.Constraint("Horizontal", 17),
    Sketcher.Constraint("Vertical", 18),
    Sketcher.Constraint("Horizontal", 19),
    Sketcher.Constraint("Vertical", 20),
    Sketcher.Constraint("Horizontal", 21),
    Sketcher.Constraint("Vertical", 22),
    Sketcher.Constraint("Horizontal", 23),
    Sketcher.Constraint("Symmetric", 0, 2, 14, 2, -1, 1),
    Sketcher.Constraint("Symmetric", 2, 2, 16, 2, -1, 1),
    Sketcher.Constraint("Symmetric", 4, 2, 18, 2, -1, 1),
    Sketcher.Constraint("Symmetric", 6, 2, 20, 2, -1, 1),
    Sketcher.Constraint("Symmetric", 1, 2, 4, 2, -2),
    Sketcher.Constraint("Symmetric", 7, 2, 22, 2, -2),
    Sketcher.Constraint("Vertical", 6, 2, 9, 2),
    Sketcher.Constraint("Vertical", 8, 2, 11, 2),
    Sketcher.Constraint("Vertical", 10, 2, 13, 2),
    Sketcher.Constraint("Equal", 19, 0),
    Sketcher.Constraint("Equal", 23, 2),
    Sketcher.Constraint("DistanceX", 1, 2, 1, 1, 9.0),
    Sketcher.Constraint("DistanceX", 7, 2, 7, 1, 3.0),
    Sketcher.Constraint("DistanceX", 3, 2, 3, 1, 61.6),
    Sketcher.Constraint("DistanceY", 8, 2, 8, 1, 12.6),
    Sketcher.Constraint("DistanceY", 10, 2, 10, 1, 19.8),
    Sketcher.Constraint("DistanceY", 12, 2, 12, 1, 9.4),
    Sketcher.Constraint("DistanceY", 14, 2, 14, 1, 8.8),
])
pad3 = doc.addObject("PartDesign::Pad", "Pad002")
body2.addObject(pad3)
pad3.Profile = sketch10
pad3.Length = 3

# Sketch on XY plane
sketch11 = doc.addObject("Sketcher::SketchObject", "Sketch010")
body2.addObject(sketch11)
sketch11.AttachmentSupport = (doc.getObject("XY_Plane001"), [""])
sketch11.MapMode = "FlatFace"
sketch11.AttachmentOffset = App.Placement(App.Vector(0, 0, 60), App.Rotation())
sketch11.addGeometry([
    Part.LineSegment(App.Vector(-32, 24, 0), App.Vector(-32, 18, 0)),  # 0
    Part.LineSegment(App.Vector(-32, 18, 0), App.Vector(32, 18, 0)),  # 1
    Part.LineSegment(App.Vector(32, 18, 0), App.Vector(32, 24, 0)),  # 2
    Part.LineSegment(App.Vector(32, 24, 0), App.Vector(-32, 24, 0)),  # 3
    Part.LineSegment(App.Vector(-32, 10, 0), App.Vector(-32, 4, 0)),  # 4
    Part.LineSegment(App.Vector(-32, 4, 0), App.Vector(32, 4, 0)),  # 5
    Part.LineSegment(App.Vector(32, 4, 0), App.Vector(32, 10, 0)),  # 6
    Part.LineSegment(App.Vector(32, 10, 0), App.Vector(-32, 10, 0)),  # 7
    Part.LineSegment(App.Vector(-32, -4, 0), App.Vector(-32, -10, 0)),  # 8
    Part.LineSegment(App.Vector(-32, -10, 0), App.Vector(32, -10, 0)),  # 9
    Part.LineSegment(App.Vector(32, -10, 0), App.Vector(32, -4, 0)),  # 10
    Part.LineSegment(App.Vector(32, -4, 0), App.Vector(-32, -4, 0)),  # 11
    Part.LineSegment(App.Vector(-32, -18, 0), App.Vector(-32, -24, 0)),  # 12
    Part.LineSegment(App.Vector(-32, -24, 0), App.Vector(32, -24, 0)),  # 13
    Part.LineSegment(App.Vector(32, -24, 0), App.Vector(32, -18, 0)),  # 14
    Part.LineSegment(App.Vector(32, -18, 0), App.Vector(-32, -18, 0)),  # 15
], False)
sketch11.addConstraint([
    Sketcher.Constraint("Coincident", 0, 2, 1, 1),
    Sketcher.Constraint("Coincident", 1, 2, 2, 1),
    Sketcher.Constraint("Coincident", 2, 2, 3, 1),
    Sketcher.Constraint("Coincident", 3, 2, 0, 1),
    Sketcher.Constraint("Coincident", 4, 2, 5, 1),
    Sketcher.Constraint("Coincident", 5, 2, 6, 1),
    Sketcher.Constraint("Coincident", 6, 2, 7, 1),
    Sketcher.Constraint("Coincident", 7, 2, 4, 1),
    Sketcher.Constraint("Coincident", 8, 2, 9, 1),
    Sketcher.Constraint("Coincident", 9, 2, 10, 1),
    Sketcher.Constraint("Coincident", 10, 2, 11, 1),
    Sketcher.Constraint("Coincident", 11, 2, 8, 1),
    Sketcher.Constraint("Coincident", 12, 2, 13, 1),
    Sketcher.Constraint("Coincident", 13, 2, 14, 1),
    Sketcher.Constraint("Coincident", 14, 2, 15, 1),
    Sketcher.Constraint("Coincident", 15, 2, 12, 1),
    Sketcher.Constraint("Vertical", 0),
    Sketcher.Constraint("Horizontal", 1),
    Sketcher.Constraint("Vertical", 2),
    Sketcher.Constraint("Horizontal", 3),
    Sketcher.Constraint("Vertical", 4),
    Sketcher.Constraint("Horizontal", 5),
    Sketcher.Constraint("Vertical", 6),
    Sketcher.Constraint("Horizontal", 7),
    Sketcher.Constraint("Vertical", 8),
    Sketcher.Constraint("Horizontal", 9),
    Sketcher.Constraint("Vertical", 10),
    Sketcher.Constraint("Horizontal", 11),
    Sketcher.Constraint("Vertical", 12),
    Sketcher.Constraint("Horizontal", 13),
    Sketcher.Constraint("Vertical", 14),
    Sketcher.Constraint("Horizontal", 15),
    Sketcher.Constraint("Symmetric", 6, 2, 8, 2, -1, 1),
    Sketcher.Constraint("Symmetric", 4, 2, 10, 2, -1, 1),
    Sketcher.Constraint("Symmetric", 2, 2, 12, 2, -1, 1),
    Sketcher.Constraint("Symmetric", 0, 2, 14, 2, -1, 1),
    Sketcher.Constraint("Vertical", 3, 2, 4, 2),
    Sketcher.Constraint("Vertical", 2, 2, 5, 2),
    Sketcher.Constraint("Vertical", 7, 2, 8, 2),
    Sketcher.Constraint("Equal", 2, 4),
    Sketcher.Constraint("DistanceX", 1, 1, 1, 2, 65.0),
    Sketcher.Constraint("DistanceY", 0, 2, 0, 1, 6.0),
    Sketcher.Constraint("DistanceY", -1, 1, 0, 2, 18.0),
    Sketcher.Constraint("DistanceY", -1, 1, 4, 2, 4.0),
])
pocket8 = doc.addObject("PartDesign::Pocket", "Pocket007")
body2.addObject(pocket8)
pocket8.Profile = sketch11
pocket8.Length = 3
doc.recompute()

chamfer2 = doc.addObject("PartDesign::Chamfer", "Chamfer001")
body2.addObject(chamfer2)
chamfer2.Base = (pocket8, edges_at(pocket8, [
    (-32.5, -10, 58.5),
    (-32.5, -4, 58.5),
    (32.5, -4, 58.5),
    (32.5, -10, 58.5),
    (-32.5, -24, 58.5),
    (-32.5, -18, 58.5),
    (32.5, -18, 58.5),
    (32.5, -24, 58.5),
    (-32.5, 18, 58.5),
    (-32.5, 24, 58.5),
    (32.5, 24, 58.5),
    (32.5, 18, 58.5),
    (-32.5, 4, 58.5),
    (-32.5, 10, 58.5),
    (32.5, 10, 58.5),
    (32.5, 4, 58.5),
]))
chamfer2.Size = 2

doc.recompute()
